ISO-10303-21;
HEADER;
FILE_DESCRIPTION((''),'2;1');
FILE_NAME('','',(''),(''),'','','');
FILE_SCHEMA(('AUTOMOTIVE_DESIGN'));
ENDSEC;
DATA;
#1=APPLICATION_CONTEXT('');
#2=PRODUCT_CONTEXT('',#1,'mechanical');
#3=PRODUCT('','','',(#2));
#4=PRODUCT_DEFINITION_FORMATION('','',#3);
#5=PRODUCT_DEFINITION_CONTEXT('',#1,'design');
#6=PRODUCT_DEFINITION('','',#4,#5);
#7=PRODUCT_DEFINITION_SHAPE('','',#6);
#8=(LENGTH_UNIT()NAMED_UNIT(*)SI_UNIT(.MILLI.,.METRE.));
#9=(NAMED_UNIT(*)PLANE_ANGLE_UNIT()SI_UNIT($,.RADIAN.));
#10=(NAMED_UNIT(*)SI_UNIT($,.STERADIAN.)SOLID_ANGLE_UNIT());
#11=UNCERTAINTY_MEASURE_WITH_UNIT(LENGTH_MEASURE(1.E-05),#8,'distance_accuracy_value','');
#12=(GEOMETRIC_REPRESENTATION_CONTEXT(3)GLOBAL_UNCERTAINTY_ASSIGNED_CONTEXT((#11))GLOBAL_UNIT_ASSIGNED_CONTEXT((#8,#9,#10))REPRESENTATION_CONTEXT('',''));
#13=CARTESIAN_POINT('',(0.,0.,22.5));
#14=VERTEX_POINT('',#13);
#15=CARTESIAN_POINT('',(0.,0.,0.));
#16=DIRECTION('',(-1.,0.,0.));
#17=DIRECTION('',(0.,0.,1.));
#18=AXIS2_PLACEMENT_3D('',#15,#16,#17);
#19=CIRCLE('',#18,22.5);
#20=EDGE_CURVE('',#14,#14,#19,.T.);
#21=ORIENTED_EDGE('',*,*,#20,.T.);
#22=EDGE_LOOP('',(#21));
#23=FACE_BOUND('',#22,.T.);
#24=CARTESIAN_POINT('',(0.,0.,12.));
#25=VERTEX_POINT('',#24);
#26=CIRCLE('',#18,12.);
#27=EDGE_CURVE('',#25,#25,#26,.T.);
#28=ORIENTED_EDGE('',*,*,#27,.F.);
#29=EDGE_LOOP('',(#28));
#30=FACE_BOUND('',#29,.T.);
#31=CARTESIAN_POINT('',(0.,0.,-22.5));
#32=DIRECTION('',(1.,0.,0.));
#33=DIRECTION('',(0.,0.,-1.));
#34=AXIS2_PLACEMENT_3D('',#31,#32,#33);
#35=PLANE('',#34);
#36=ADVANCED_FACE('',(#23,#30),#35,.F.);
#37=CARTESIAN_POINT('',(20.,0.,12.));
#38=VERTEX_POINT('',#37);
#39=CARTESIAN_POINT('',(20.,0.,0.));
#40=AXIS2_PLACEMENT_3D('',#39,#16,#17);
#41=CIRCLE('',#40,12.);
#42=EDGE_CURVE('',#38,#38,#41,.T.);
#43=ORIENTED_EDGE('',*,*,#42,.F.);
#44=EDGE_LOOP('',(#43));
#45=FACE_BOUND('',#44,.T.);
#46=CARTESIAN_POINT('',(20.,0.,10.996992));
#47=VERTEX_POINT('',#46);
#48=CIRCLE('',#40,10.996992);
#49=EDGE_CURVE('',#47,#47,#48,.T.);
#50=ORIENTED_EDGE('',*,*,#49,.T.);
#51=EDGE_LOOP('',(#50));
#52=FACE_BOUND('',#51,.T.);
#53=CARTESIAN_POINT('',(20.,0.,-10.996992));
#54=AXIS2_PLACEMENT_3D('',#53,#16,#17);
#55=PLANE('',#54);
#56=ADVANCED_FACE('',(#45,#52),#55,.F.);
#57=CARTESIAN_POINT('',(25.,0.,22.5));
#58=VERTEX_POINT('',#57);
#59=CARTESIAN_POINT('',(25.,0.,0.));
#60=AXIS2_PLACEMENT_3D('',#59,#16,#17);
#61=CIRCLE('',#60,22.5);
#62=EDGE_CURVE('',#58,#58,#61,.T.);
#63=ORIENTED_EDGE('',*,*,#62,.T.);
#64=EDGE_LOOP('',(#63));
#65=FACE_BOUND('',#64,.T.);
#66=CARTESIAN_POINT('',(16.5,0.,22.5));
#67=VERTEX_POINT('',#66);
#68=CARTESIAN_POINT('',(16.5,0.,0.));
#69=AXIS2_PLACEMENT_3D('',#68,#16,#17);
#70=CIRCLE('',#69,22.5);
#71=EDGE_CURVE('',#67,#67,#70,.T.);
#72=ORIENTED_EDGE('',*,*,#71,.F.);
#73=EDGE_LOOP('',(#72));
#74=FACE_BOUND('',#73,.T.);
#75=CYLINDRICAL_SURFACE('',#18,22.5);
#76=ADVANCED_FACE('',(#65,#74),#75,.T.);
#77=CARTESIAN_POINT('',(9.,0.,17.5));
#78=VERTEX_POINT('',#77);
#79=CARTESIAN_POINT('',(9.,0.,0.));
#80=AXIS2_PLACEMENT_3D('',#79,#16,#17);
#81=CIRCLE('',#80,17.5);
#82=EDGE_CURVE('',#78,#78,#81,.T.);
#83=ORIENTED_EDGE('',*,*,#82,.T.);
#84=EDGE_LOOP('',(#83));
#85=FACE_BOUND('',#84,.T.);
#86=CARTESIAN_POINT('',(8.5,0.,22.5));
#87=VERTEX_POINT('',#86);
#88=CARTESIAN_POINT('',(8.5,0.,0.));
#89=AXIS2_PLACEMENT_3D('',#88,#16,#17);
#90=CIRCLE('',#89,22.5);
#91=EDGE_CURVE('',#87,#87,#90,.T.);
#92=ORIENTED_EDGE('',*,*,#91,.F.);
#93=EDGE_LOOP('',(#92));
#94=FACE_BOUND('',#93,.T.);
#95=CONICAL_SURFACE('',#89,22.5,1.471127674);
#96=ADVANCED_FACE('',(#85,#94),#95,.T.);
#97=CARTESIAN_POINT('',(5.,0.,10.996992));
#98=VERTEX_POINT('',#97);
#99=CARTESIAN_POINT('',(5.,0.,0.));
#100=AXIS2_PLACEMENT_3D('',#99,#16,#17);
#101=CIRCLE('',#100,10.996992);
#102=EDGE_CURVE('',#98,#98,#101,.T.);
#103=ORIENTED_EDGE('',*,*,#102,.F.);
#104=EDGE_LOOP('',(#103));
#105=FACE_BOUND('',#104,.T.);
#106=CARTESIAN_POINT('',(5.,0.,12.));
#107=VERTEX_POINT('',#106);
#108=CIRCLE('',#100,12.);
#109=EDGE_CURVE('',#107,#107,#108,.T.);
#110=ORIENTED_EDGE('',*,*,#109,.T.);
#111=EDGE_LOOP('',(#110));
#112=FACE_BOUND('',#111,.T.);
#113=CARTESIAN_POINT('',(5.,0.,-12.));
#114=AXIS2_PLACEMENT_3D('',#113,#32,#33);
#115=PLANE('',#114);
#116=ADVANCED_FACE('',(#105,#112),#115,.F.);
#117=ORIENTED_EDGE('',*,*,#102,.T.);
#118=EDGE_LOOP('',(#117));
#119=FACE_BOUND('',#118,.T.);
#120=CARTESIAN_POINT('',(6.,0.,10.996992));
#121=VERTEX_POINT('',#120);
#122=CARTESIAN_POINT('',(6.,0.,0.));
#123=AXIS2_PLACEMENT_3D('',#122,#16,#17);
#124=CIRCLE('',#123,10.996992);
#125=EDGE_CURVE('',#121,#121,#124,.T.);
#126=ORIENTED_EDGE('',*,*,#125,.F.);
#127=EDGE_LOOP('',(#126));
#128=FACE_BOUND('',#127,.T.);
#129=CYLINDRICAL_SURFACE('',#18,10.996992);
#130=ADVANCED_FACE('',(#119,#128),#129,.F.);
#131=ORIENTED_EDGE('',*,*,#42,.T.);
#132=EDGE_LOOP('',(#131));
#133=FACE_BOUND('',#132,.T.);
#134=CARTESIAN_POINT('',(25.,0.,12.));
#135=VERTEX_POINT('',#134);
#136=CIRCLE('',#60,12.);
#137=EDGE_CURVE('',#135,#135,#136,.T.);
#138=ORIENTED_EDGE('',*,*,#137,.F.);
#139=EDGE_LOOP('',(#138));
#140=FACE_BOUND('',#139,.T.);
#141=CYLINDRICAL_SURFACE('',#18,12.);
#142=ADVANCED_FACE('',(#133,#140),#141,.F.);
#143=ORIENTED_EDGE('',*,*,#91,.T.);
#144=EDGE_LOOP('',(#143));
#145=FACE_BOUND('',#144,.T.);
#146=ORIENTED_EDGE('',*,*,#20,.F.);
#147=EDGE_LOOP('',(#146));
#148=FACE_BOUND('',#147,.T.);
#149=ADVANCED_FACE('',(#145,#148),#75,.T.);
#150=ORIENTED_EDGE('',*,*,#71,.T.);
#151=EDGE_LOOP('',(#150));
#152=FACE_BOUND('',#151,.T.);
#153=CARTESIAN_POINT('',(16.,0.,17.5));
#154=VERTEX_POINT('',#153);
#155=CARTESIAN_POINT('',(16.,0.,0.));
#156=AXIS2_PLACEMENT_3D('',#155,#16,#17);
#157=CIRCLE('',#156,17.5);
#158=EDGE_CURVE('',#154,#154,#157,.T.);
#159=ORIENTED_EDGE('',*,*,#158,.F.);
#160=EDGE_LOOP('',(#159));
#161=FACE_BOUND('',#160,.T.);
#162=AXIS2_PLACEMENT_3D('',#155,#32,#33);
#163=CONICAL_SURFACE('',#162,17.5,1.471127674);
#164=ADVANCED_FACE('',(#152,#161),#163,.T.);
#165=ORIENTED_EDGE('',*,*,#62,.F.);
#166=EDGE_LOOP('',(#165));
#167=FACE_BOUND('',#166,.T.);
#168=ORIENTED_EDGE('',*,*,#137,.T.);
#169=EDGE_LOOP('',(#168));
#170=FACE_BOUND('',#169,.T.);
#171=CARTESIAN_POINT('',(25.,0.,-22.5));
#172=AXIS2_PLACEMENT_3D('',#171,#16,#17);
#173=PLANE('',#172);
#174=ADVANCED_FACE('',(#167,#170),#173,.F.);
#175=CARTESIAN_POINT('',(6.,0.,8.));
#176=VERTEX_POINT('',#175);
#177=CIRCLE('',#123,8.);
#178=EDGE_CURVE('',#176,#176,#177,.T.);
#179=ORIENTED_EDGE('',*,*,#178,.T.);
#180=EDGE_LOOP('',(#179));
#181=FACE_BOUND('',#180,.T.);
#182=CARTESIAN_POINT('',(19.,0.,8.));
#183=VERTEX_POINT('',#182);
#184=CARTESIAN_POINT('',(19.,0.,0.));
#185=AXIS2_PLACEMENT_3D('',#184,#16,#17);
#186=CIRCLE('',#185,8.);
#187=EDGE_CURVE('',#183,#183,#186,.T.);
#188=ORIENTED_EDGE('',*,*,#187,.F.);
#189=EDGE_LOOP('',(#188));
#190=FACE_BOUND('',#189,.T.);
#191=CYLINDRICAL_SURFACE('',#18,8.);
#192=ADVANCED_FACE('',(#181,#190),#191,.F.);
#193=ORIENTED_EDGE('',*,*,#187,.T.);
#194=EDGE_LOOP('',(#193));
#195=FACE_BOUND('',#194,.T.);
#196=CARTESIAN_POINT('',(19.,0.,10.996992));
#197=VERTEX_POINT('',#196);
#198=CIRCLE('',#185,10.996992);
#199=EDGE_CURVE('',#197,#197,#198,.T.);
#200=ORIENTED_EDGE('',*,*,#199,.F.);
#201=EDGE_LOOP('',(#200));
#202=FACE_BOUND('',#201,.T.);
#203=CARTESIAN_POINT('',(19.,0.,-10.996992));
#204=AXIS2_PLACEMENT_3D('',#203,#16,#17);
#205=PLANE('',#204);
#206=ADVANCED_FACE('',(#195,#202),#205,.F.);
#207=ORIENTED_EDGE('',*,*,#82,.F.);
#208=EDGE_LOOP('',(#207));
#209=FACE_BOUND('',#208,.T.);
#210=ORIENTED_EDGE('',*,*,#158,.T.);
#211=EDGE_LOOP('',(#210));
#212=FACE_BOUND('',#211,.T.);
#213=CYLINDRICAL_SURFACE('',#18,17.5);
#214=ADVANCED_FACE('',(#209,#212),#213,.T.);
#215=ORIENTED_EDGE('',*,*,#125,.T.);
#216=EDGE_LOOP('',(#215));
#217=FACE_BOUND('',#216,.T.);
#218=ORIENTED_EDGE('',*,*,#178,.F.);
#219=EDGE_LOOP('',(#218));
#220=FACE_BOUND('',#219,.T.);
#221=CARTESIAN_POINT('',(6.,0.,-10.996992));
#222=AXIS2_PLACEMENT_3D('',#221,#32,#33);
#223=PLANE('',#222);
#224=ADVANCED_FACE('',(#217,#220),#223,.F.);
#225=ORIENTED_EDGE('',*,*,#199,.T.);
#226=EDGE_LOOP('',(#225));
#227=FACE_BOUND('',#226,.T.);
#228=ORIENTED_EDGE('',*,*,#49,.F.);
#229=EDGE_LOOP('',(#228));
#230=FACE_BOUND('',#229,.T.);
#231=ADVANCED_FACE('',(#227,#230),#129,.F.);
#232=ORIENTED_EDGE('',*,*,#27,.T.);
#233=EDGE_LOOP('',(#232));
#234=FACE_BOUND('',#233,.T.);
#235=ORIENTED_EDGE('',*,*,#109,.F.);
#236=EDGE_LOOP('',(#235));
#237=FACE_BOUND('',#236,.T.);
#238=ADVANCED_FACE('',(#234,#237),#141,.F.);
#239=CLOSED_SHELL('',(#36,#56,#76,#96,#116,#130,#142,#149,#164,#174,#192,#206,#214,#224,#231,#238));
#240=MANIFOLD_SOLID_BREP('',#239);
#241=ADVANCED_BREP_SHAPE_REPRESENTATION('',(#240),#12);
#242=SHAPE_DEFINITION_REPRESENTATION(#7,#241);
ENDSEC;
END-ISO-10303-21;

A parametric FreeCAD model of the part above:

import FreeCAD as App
import Part
import Sketcher
from FreeCAD import Vector
Q = App.Units.Quantity

doc = App.newDocument("Part")
body = doc.addObject("PartDesign::Body", "Body")

sketch1 = doc.addObject("Sketcher::SketchObject", "Sketch")
body.addObject(sketch1)
sketch1.AttachmentSupport = (doc.XZ_Plane, [""])
sketch1.MapMode = "FlatFace"
sketch1.addGeometry([
    Part.LineSegment(Vector(25, -22.5, 0), Vector(0, -22.5, 0)),
    Part.LineSegment(Vector(0, -22.5, 0), Vector(0, -12, 0)),
    Part.LineSegment(Vector(0, -12, 0), Vector(5, -12, 0)),
    Part.LineSegment(Vector(5, -12, 0), Vector(5, -11, 0)),
    Part.LineSegment(Vector(5, -11, 0), Vector(6, -11, 0)),
    Part.LineSegment(Vector(6, -11, 0), Vector(6, -8, 0)),
    Part.LineSegment(Vector(6, -8, 0), Vector(19, -8, 0)),
    Part.LineSegment(Vector(19, -8, 0), Vector(19, -11, 0)),
    Part.LineSegment(Vector(19, -11, 0), Vector(20, -11, 0)),
    Part.LineSegment(Vector(20, -11, 0), Vector(20, -12, 0)),
    Part.LineSegment(Vector(20, -12, 0), Vector(25, -12, 0)),
    Part.LineSegment(Vector(25, -12, 0), Vector(25, -22.5, 0)),
], False)
sketch1.addConstraint([
    Sketcher.Constraint("Coincident", 0, 2, 1, 1),
    Sketcher.Constraint("Coincident", 1, 2, 2, 1),
    Sketcher.Constraint("Coincident", 2, 2, 3, 1),
    Sketcher.Constraint("Coincident", 3, 2, 4, 1),
    Sketcher.Constraint("Coincident", 4, 2, 5, 1),
    Sketcher.Constraint("Coincident", 5, 2, 6, 1),
    Sketcher.Constraint("Coincident", 6, 2, 7, 1),
    Sketcher.Constraint("Coincident", 7, 2, 8, 1),
    Sketcher.Constraint("Coincident", 8, 2, 9, 1),
    Sketcher.Constraint("Coincident", 9, 2, 10, 1),
    Sketcher.Constraint("Coincident", 10, 2, 11, 1),
    Sketcher.Constraint("Coincident", 11, 2, 0, 1),
    Sketcher.Constraint("Horizontal", 0),
    Sketcher.Constraint("Vertical", 1),
    Sketcher.Constraint("Horizontal", 2),
    Sketcher.Constraint("Vertical", 3),
    Sketcher.Constraint("Horizontal", 4),
    Sketcher.Constraint("Vertical", 5),
    Sketcher.Constraint("Horizontal", 6),
    Sketcher.Constraint("Vertical", 7),
    Sketcher.Constraint("Horizontal", 8),
    Sketcher.Constraint("Vertical", 9),
    Sketcher.Constraint("Horizontal", 10),
    Sketcher.Constraint("Vertical", 11),
    Sketcher.Constraint("PointOnObject", 0, 2, -2),
    Sketcher.Constraint("Horizontal", 4, 2, 7, 2),
    Sketcher.Constraint("Horizontal", 2, 2, 9, 2),
    Sketcher.Constraint("Equal", 4, 8),
    Sketcher.Constraint("Equal", 2, 10),
    Sketcher.Constraint("DistanceX", 0, 2, 0, 1, Q("25 mm")),
    Sketcher.Constraint("DistanceX", 2, 1, 2, 2, Q("5 mm")),
    Sketcher.Constraint("DistanceX", 4, 1, 4, 2, Q("1 mm")),
    Sketcher.Constraint("DistanceY", 1, 1, 1, 2, Q("10.5 mm")),
    Sketcher.Constraint("DistanceY", 1, 2, -1, 1, Q("12 mm")),
    Sketcher.Constraint("DistanceY", 5, 2, -1, 1, Q("8 mm")),
    Sketcher.Constraint("DistanceY", 3, 1, 3, 2, Q("1.003008 mm")),
])
revolution = doc.addObject("PartDesign::Revolution", "Revolution")
body.addObject(revolution)
revolution.Profile = sketch1
revolution.ReferenceAxis = (sketch1, ["H_Axis"])
revolution.Angle = 360

sketch2 = doc.addObject("Sketcher::SketchObject", "Sketch001")
body.addObject(sketch2)
sketch2.AttachmentSupport = (doc.XZ_Plane, [""])
sketch2.MapMode = "FlatFace"
sketch2.addGeometry([
    Part.LineSegment(Vector(8, -22, 0), Vector(9, -18, 0)),
    Part.LineSegment(Vector(9, -18, 0), Vector(16, -18, 0)),
    Part.LineSegment(Vector(16, -18, 0), Vector(16, -22, 0)),
    Part.LineSegment(Vector(16, -22, 0), Vector(8, -22, 0)),
], False)
sketch2.addConstraint([
    Sketcher.Constraint("Coincident", 0, 2, 1, 1),
    Sketcher.Constraint("Coincident", 1, 2, 2, 1),
    Sketcher.Constraint("Coincident", 2, 2, 3, 1),
    Sketcher.Constraint("Coincident", 3, 2, 0, 1),
    Sketcher.Constraint("Horizontal", 1),
    Sketcher.Constraint("Horizontal", 3),
    Sketcher.Constraint("Equal", 0, 2),
    Sketcher.Constraint("DistanceX", 1, 1, 1, 2, Q("7 mm")),
    Sketcher.Constraint("DistanceX", 3, 2, 3, 1, Q("8 mm")),
    Sketcher.Constraint("DistanceX", -1, 1, 0, 2, Q("9 mm")),
    Sketcher.Constraint("DistanceY", 2, 2, 1, 2, Q("5 mm")),
    Sketcher.Constraint("DistanceY", 0, 2, -1, 1, Q("17.5 mm")),
])
groove = doc.addObject("PartDesign::Groove", "Groove")
body.addObject(groove)
groove.Profile = sketch2
groove.ReferenceAxis = (sketch2, ["H_Axis"])
groove.Angle = 360

doc.recompute()
